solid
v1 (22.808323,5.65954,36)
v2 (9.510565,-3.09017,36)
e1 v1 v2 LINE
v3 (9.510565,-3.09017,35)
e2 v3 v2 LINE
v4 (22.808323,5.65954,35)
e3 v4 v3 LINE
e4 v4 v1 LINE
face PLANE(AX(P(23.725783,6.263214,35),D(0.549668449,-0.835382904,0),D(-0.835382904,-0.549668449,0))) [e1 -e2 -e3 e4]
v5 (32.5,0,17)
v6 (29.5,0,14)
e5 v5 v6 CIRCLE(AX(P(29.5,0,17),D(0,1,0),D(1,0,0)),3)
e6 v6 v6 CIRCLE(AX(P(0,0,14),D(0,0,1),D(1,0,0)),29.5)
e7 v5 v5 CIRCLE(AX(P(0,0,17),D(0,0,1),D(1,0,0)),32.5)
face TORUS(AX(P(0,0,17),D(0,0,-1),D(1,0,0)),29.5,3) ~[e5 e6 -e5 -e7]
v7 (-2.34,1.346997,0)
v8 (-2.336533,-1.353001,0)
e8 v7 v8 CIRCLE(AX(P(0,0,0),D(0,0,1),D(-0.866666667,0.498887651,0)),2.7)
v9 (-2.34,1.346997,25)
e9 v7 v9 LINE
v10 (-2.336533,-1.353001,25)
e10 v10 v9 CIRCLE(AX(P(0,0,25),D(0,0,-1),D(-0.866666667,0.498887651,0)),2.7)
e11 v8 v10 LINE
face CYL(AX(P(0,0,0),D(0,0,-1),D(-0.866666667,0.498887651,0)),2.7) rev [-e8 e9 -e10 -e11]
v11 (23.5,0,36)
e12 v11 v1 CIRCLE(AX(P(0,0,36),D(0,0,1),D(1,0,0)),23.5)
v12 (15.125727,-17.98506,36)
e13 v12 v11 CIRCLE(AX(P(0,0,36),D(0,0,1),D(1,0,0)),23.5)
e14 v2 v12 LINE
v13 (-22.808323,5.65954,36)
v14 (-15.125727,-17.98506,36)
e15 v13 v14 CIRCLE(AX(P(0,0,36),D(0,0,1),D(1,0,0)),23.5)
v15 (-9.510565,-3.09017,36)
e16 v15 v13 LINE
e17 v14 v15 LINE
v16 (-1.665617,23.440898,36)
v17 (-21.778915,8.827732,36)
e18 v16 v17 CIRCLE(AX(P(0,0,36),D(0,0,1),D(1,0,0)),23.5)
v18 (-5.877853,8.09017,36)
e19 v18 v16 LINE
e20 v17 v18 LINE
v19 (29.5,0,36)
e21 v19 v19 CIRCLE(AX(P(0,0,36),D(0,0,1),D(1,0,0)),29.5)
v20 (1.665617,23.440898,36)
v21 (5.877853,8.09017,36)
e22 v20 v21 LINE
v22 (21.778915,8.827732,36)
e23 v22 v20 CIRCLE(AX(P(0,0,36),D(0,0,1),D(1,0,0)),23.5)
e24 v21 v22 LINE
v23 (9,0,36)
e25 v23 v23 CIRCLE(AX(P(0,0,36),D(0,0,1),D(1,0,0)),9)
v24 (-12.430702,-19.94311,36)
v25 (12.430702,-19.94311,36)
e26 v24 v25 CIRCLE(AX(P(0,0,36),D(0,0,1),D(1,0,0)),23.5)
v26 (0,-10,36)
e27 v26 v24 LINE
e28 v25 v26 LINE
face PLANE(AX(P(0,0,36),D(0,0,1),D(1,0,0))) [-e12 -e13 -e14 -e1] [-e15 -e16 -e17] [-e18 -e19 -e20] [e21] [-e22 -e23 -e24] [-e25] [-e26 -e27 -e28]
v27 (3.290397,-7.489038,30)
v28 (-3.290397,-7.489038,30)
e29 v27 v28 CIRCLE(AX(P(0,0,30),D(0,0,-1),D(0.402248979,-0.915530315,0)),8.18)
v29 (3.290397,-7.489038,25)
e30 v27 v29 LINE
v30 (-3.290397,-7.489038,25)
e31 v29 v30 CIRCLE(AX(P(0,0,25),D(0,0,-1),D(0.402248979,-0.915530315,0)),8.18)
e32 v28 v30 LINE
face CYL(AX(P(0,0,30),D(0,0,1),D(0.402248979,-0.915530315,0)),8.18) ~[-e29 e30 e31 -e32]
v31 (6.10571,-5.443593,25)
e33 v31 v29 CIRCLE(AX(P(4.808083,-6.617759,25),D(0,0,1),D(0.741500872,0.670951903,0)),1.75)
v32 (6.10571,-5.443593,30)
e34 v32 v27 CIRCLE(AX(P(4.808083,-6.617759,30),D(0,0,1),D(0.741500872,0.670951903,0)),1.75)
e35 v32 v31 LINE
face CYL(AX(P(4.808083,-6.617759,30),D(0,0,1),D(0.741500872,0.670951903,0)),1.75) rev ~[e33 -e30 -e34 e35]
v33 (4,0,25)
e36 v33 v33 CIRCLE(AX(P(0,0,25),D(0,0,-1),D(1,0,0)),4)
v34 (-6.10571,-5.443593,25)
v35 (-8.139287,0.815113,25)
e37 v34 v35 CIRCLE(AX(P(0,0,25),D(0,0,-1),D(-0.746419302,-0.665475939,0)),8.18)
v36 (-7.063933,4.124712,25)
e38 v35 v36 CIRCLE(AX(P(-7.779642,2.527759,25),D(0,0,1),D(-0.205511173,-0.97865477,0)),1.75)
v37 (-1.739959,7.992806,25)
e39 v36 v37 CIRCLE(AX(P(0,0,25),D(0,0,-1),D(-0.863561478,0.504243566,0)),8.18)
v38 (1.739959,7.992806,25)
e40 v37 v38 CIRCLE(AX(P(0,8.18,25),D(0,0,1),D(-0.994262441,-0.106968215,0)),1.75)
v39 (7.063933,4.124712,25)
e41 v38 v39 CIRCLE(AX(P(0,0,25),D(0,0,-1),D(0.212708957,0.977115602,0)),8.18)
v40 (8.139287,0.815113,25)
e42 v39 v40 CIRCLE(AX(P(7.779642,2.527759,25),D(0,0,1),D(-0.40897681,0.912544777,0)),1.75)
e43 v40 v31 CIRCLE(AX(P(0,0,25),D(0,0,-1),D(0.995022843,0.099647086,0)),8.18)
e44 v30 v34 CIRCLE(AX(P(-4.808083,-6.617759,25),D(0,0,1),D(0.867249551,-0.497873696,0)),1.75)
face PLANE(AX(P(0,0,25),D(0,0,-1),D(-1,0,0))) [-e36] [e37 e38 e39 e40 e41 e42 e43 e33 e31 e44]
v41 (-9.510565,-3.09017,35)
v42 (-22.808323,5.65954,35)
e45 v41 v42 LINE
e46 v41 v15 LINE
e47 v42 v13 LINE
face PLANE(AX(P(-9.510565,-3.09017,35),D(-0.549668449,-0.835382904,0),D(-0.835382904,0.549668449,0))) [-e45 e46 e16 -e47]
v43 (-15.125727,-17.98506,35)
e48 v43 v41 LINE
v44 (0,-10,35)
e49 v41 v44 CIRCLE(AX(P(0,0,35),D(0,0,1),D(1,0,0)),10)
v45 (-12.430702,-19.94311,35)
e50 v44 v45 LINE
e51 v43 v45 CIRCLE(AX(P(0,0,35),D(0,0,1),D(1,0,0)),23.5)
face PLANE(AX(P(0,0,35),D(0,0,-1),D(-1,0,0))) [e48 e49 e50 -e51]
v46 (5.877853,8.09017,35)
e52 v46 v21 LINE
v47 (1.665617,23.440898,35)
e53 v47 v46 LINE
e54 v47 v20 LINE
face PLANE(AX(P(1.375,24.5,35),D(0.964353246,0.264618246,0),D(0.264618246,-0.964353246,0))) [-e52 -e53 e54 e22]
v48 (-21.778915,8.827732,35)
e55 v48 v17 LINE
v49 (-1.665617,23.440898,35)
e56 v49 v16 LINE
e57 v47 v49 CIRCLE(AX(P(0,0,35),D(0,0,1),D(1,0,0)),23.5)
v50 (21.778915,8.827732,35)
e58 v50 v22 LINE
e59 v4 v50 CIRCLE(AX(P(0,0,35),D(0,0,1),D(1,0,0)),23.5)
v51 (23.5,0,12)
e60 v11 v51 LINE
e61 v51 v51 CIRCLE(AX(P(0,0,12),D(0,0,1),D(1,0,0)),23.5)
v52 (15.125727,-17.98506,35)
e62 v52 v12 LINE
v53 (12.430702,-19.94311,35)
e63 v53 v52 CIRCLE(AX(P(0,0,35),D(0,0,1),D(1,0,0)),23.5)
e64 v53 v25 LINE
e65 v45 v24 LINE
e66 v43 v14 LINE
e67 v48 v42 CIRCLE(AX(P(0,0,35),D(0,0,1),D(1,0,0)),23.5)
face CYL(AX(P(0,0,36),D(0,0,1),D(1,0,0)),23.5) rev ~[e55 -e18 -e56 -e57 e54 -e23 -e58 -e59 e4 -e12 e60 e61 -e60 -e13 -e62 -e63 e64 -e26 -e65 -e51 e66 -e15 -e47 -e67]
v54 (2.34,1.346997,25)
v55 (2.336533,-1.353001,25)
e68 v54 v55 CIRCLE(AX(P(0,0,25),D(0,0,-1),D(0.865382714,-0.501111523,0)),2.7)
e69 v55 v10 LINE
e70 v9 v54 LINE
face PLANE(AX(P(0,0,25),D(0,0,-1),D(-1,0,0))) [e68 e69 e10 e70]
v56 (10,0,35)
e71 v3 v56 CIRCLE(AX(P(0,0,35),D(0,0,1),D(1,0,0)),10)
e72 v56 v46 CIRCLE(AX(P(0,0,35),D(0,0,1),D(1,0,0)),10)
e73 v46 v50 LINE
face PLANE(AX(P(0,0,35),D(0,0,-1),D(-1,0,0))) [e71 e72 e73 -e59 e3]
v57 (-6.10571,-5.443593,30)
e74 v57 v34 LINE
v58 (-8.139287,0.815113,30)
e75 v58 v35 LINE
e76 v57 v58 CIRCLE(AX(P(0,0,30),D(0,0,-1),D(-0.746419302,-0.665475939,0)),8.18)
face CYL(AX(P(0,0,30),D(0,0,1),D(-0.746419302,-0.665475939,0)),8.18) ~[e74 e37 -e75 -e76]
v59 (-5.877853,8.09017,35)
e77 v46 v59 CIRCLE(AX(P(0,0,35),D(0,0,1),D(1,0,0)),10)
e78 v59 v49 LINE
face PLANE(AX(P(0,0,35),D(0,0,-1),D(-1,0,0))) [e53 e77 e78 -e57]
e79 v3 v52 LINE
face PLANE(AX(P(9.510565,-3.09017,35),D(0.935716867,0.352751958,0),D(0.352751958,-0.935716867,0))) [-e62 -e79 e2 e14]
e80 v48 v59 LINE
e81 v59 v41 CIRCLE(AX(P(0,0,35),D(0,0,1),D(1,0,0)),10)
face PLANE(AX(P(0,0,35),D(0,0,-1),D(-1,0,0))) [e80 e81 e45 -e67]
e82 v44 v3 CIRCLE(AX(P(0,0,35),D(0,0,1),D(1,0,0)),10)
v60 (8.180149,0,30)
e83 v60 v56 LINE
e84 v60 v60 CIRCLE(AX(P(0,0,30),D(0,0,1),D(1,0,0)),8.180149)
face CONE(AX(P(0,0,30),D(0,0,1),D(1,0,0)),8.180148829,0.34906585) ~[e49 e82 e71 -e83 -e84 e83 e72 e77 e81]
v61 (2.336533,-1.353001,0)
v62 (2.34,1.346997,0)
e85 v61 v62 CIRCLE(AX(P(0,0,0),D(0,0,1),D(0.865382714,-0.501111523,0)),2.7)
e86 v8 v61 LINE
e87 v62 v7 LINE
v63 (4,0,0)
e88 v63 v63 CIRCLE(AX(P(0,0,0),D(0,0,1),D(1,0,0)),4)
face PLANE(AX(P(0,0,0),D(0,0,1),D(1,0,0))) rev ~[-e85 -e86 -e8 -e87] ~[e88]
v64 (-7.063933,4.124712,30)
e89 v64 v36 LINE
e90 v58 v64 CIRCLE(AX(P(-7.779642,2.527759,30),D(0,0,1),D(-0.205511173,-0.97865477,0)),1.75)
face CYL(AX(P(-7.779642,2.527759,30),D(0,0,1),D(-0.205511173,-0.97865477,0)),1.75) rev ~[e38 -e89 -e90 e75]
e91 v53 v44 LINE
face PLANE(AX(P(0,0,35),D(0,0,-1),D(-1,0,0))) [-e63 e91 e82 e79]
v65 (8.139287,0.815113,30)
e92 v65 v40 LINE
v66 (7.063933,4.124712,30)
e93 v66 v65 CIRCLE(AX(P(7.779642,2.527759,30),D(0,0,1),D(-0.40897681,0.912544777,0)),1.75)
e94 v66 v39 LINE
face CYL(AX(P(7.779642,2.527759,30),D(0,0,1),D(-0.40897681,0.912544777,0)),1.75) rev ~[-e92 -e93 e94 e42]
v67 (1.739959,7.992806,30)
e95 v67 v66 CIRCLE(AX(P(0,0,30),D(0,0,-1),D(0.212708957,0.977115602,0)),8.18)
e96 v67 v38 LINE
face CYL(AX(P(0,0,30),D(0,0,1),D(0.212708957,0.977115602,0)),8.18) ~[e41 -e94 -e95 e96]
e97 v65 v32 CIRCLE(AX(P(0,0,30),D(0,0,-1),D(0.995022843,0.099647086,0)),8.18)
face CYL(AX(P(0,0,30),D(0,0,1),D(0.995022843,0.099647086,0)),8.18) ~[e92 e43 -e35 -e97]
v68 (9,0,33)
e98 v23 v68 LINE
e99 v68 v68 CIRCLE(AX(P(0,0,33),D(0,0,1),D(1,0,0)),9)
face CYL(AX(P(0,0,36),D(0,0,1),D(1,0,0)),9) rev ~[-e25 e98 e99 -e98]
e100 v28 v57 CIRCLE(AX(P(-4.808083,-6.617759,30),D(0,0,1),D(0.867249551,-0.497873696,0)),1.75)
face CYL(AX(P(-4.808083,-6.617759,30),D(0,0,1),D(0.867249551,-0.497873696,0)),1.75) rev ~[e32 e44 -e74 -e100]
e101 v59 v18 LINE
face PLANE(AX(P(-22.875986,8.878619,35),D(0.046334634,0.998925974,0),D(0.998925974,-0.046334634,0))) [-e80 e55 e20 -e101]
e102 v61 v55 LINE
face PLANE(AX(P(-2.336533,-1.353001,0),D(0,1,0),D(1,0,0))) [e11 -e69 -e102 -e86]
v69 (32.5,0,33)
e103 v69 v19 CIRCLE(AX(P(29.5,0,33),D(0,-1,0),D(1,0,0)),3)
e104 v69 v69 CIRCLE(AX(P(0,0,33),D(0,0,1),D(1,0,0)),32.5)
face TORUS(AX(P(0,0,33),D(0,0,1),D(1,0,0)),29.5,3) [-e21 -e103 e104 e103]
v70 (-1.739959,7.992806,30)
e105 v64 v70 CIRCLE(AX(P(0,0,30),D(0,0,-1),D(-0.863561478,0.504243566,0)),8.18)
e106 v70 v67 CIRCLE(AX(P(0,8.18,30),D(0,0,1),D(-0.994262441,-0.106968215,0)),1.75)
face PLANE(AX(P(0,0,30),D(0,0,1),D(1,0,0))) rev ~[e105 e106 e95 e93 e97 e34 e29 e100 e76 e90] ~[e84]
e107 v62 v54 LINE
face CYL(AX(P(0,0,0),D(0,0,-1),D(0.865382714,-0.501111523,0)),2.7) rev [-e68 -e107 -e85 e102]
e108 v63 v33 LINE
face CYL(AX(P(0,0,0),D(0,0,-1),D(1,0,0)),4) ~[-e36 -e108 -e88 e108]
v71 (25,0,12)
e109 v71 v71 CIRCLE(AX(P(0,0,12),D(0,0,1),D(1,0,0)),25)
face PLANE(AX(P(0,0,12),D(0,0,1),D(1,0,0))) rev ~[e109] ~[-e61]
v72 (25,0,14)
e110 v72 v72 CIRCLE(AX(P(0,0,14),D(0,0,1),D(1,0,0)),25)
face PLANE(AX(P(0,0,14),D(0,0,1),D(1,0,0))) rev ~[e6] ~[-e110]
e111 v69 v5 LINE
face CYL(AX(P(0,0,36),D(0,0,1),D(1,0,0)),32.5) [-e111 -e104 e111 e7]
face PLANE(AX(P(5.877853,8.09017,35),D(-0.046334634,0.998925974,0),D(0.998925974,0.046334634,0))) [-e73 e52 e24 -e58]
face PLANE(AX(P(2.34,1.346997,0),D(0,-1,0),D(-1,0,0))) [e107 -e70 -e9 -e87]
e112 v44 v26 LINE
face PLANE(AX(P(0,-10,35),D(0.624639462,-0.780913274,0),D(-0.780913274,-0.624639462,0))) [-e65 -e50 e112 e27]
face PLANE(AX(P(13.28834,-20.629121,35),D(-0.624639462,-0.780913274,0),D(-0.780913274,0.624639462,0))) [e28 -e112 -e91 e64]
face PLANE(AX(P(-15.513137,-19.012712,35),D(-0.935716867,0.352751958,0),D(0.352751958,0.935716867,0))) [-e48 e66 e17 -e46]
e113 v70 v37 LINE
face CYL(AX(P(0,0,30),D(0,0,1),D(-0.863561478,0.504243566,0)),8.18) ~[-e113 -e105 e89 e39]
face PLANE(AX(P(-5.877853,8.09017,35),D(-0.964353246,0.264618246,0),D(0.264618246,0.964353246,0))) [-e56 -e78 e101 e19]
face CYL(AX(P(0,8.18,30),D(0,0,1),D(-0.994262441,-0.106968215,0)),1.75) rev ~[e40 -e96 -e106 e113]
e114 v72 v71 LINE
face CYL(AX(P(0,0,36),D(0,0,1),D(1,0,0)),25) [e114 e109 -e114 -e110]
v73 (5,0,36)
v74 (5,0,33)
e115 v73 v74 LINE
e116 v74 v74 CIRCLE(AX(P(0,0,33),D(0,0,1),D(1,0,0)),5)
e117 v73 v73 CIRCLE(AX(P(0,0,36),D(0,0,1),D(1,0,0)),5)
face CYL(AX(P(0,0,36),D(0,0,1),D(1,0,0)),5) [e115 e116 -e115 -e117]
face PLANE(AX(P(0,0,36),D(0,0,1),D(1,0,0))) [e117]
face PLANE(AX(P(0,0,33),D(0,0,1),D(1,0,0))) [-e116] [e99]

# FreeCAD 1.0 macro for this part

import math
import FreeCAD as App
import Part
import Sketcher
from FreeCAD import Vector
Q = App.Units.Quantity


def edges_at(feature, points):
    """Names of the edges that pass closest to the given points."""
    edges = feature.Shape.Edges
    near = lambda p: min(range(len(edges)), key=lambda i: edges[i].distToShape(Part.Vertex(*p))[0])
    return sorted({f"Edge{near(p) + 1}" for p in points})


def faces_at(feature, points):
    """Names of the faces that lie closest to the given points."""
    faces = feature.Shape.Faces
    near = lambda p: min(range(len(faces)), key=lambda i: faces[i].distToShape(Part.Vertex(*p))[0])
    return sorted({f"Face{near(p) + 1}" for p in points})


def add_polygon(sketch, points):
    """Adds a closed chain of lines whose ends are joined by coincident constraints."""
    first, n = sketch.GeometryCount, len(points)
    for a, b in zip(points, points[1:] + points[:1]):
        sketch.addGeometry(Part.LineSegment(App.Vector(*a, 0), App.Vector(*b, 0)), False)
    for i in range(n):
        sketch.addConstraint(Sketcher.Constraint("Coincident", first + i, 2, first + (i + 1) % n, 1))

doc = App.newDocument("Part")
body = doc.addObject("PartDesign::Body", "Body")

# Sketch on XY plane
sketch1 = body.newObject("Sketcher::SketchObject", "Sketch")
sketch1.AttachmentSupport = (doc.getObject("XY_Plane"), [""])
sketch1.MapMode = "FlatFace"
sketch1.addGeometry([
    Part.Circle(Vector(0, 0, 0), Vector(0, 0, 1), 4),  # 0
    Part.LineSegment(Vector(2.3, -1.4, 0), Vector(-2.3, -1.4, 0)),  # 1
    Part.ArcOfCircle(Part.Circle(Vector(0, 0, 0), Vector(0, 0, 1), 2.7), math.radians(150), math.radians(210)),  # 2
    Part.LineSegment(Vector(-2.3, 1.3, 0), Vector(2.3, 1.3, 0)),  # 3
    Part.ArcOfCircle(Part.Circle(Vector(0, 0, 0), Vector(0, 0, 1), 2.7), math.radians(-30), math.radians(30)),  # 4
], False)
sketch1.addConstraint([
    Sketcher.Constraint("Coincident", 1, 2, 2, 2),
    Sketcher.Constraint("Coincident", 2, 1, 3, 1),
    Sketcher.Constraint("Coincident", 3, 2, 4, 2),
    Sketcher.Constraint("Coincident", 4, 1, 1, 1),
    Sketcher.Constraint("Horizontal", 1),
    Sketcher.Constraint("Horizontal", 3),
    Sketcher.Constraint("Coincident", 0, 3, -1, 1),
    Sketcher.Constraint("Coincident", 2, 3, -1, 1),
    Sketcher.Constraint("Coincident", 4, 3, -1, 1),
    Sketcher.Constraint("Equal", 2, 4),
    Sketcher.Constraint("Diameter", 0, 8.0),
    Sketcher.Constraint("Radius", 2, 2.7),
    Sketcher.Constraint("DistanceX", 3, 1, 3, 2, 4.68),
    Sketcher.Constraint("DistanceY", 1, 2, -1, 1, 1.353001),
])
pad1 = body.newObject("PartDesign::Pad", "Pad")
pad1.Profile = sketch1
pad1.Length = 30

# Sketch on XY plane
sketch2 = body.newObject("Sketcher::SketchObject", "Sketch001")
sketch2.AttachmentSupport = (doc.getObject("XY_Plane"), [""])
sketch2.MapMode = "FlatFace"
sketch2.AttachmentOffset = App.Placement(Vector(0, 0, 30), App.Rotation())
sketch2.addGeometry(Part.Circle(Vector(0, 0, 0), Vector(0, 0, 1), 10), False)
sketch2.addConstraint([
    Sketcher.Constraint("Coincident", 0, 3, -1, 1),
    Sketcher.Constraint("Diameter", 0, 20.0),
])
pad2 = body.newObject("PartDesign::Pad", "Pad001")
pad2.Profile = sketch2
pad2.Length = 5
doc.recompute()

datumplane = body.newObject("PartDesign::Plane", "DatumPlane")
datumplane.AttachmentSupport = (doc.getObject("XY_Plane"), [""])
datumplane.MapMode = "FlatFace"
datumplane.AttachmentOffset = App.Placement(Vector(0, 0, 35), App.Rotation())
draft = body.newObject("PartDesign::Draft", "Draft")
draft.Base = (pad2, faces_at(pad2, [(-10, 0, 32.5)]))
draft.NeutralPlane = (datumplane, [""])
draft.Angle = 20
draft.Reversed = True

# Sketch on XY plane
sketch3 = body.newObject("Sketcher::SketchObject", "Sketch002")
sketch3.AttachmentSupport = (doc.getObject("XY_Plane"), [""])
sketch3.MapMode = "FlatFace"
sketch3.AttachmentOffset = App.Placement(Vector(0, 0, 30), App.Rotation())
sketch3.addGeometry([
    Part.ArcOfCircle(Part.Circle(Vector(0, 0, 0), Vector(0, 0, 1), 8.2), math.radians(-42), math.radians(6)),  # 0
    Part.ArcOfCircle(Part.Circle(Vector(4.8, -6.6, 0), Vector(0, 0, 1), 1.8), math.radians(42), math.radians(210)),  # 1
    Part.ArcOfCircle(Part.Circle(Vector(0, 0, 0), Vector(0, 0, 1), 8.2), math.radians(-114), math.radians(-66)),  # 2
    Part.ArcOfCircle(Part.Circle(Vector(-4.8, -6.6, 0), Vector(0, 0, 1), 1.8), math.radians(-30), math.radians(138)),  # 3
    Part.ArcOfCircle(Part.Circle(Vector(0, 0, 0), Vector(0, 0, 1), 8.2), math.radians(174), math.radians(222)),  # 4
    Part.ArcOfCircle(Part.Circle(Vector(-7.8, 2.5, 0), Vector(0, 0, 1), 1.8), math.radians(-102), math.radians(66)),  # 5
    Part.ArcOfCircle(Part.Circle(Vector(0, 0, 0), Vector(0, 0, 1), 8.2), math.radians(102), math.radians(150)),  # 6
    Part.ArcOfCircle(Part.Circle(Vector(0, 8.2, 0), Vector(0, 0, 1), 1.8), math.radians(-174), math.radians(-6)),  # 7
    Part.ArcOfCircle(Part.Circle(Vector(0, 0, 0), Vector(0, 0, 1), 8.2), math.radians(30), math.radians(78)),  # 8
    Part.ArcOfCircle(Part.Circle(Vector(7.8, 2.5, 0), Vector(0, 0, 1), 1.8), math.radians(114), math.radians(282)),  # 9
], False)
sketch3.addConstraint([
    Sketcher.Constraint("Coincident", 0, 1, 1, 1),
    Sketcher.Constraint("Coincident", 1, 2, 2, 2),
    Sketcher.Constraint("Coincident", 2, 1, 3, 1),
    Sketcher.Constraint("Coincident", 3, 2, 4, 2),
    Sketcher.Constraint("Coincident", 4, 1, 5, 1),
    Sketcher.Constraint("Coincident", 5, 2, 6, 2),
    Sketcher.Constraint("Coincident", 6, 1, 7, 1),
    Sketcher.Constraint("Coincident", 7, 2, 8, 2),
    Sketcher.Constraint("Coincident", 8, 1, 9, 1),
    Sketcher.Constraint("Coincident", 9, 2, 0, 2),
    Sketcher.Constraint("Coincident", 0, 3, -1, 1),
    Sketcher.Constraint("Coincident", 2, 3, -1, 1),
    Sketcher.Constraint("Coincident", 4, 3, -1, 1),
    Sketcher.Constraint("Coincident", 6, 3, -1, 1),
    Sketcher.Constraint("Coincident", 8, 3, -1, 1),
    Sketcher.Constraint("Equal", 0, 2),
    Sketcher.Constraint("Equal", 1, 3),
    Sketcher.Constraint("Equal", 2, 4),
    Sketcher.Constraint("Equal", 3, 5),
    Sketcher.Constraint("Equal", 4, 6),
    Sketcher.Constraint("Equal", 5, 7),
    Sketcher.Constraint("Equal", 6, 8),
    Sketcher.Constraint("Equal", 7, 9),
    Sketcher.Constraint("Symmetric", 1, 3, 3, 3, -2),
    Sketcher.Constraint("Symmetric", 5, 3, 9, 3, -2),
    Sketcher.Constraint("PointOnObject", 7, 3, -2),
    Sketcher.Constraint("Radius", 0, 8.18),
    Sketcher.Constraint("Radius", 1, 1.75),
    Sketcher.Constraint("DistanceY", -1, 1, 7, 3, 8.18),
    Sketcher.Constraint("DistanceY", 4, 1, 5, 2, 3.309599),
    Sketcher.Constraint("DistanceY", 1, 3, -1, 1, 6.617759),
    Sketcher.Constraint("DistanceY", -1, 1, 5, 3, 2.527759),
    Sketcher.Constraint("DistanceX", -1, 1, 0, 1, 6.10571),
])
pad3 = body.newObject("PartDesign::Pad", "Pad002")
pad3.Profile = sketch3
pad3.Length = 5
pad3.Reversed = True

# Sketch on XY plane
sketch4 = body.newObject("Sketcher::SketchObject", "Sketch003")
sketch4.AttachmentSupport = (doc.getObject("XY_Plane"), [""])
sketch4.MapMode = "FlatFace"
sketch4.AttachmentOffset = App.Placement(Vector(0, 0, 35), App.Rotation())
add_polygon(sketch4, [(1.4, 24.5), (-1.4, 24.5), (-5.9, 8.1), (-22.9, 8.9), (-23.7, 6.3), (-9.5, -3.1), (-15.5, -19), (-13.3, -20.6), (0, -10), (13.3, -20.6), (15.5, -19), (9.5, -3.1), (23.7, 6.3), (22.9, 8.9), (5.9, 8.1)])  # lines 0-14
sketch4.addConstraint([
    Sketcher.Constraint("Horizontal", 0),
    Sketcher.Constraint("Symmetric", 6, 2, 8, 2, -2),
    Sketcher.Constraint("Symmetric", 5, 2, 9, 2, -2),
    Sketcher.Constraint("Symmetric", 4, 2, 10, 2, -2),
    Sketcher.Constraint("Symmetric", 3, 2, 11, 2, -2),
    Sketcher.Constraint("Symmetric", 2, 2, 12, 2, -2),
    Sketcher.Constraint("Symmetric", 1, 2, 13, 2, -2),
    Sketcher.Constraint("PointOnObject", 7, 2, -2),
    Sketcher.Constraint("Equal", 1, 2),
    Sketcher.Constraint("Equal", 2, 4),
    Sketcher.Constraint("Equal", 4, 5),
    Sketcher.Constraint("Equal", 3, 6),
    Sketcher.Constraint("Equal", 5, 7),
    Sketcher.Constraint("Equal", 13, 14),
    Sketcher.Constraint("Angle", 3, Q("-108 deg")),
    Sketcher.Constraint("Angle", 6, Q("-36 deg")),
    Sketcher.Constraint("DistanceY", 7, 2, -1, 1, 10.0),
    Sketcher.Constraint("DistanceX", 0, 2, 0, 1, 2.75),
    Sketcher.Constraint("DistanceY", -1, 1, 0, 2, 24.5),
    Sketcher.Constraint("Distance", 3, 2.75),
    Sketcher.Constraint("Distance", 1, 17.01641),
    Sketcher.Constraint("DistanceY", -1, 1, 1, 2, 8.09017),
    Sketcher.Constraint("DistanceY", -1, 1, 2, 2, 8.878619),
    Sketcher.Constraint("DistanceY", 4, 2, -1, 1, 3.09017),
])
pad4 = body.newObject("PartDesign::Pad", "Pad003")
pad4.Profile = sketch4
pad4.Length = 1

# Sketch on XY plane
sketch5 = body.newObject("Sketcher::SketchObject", "Sketch004")
sketch5.AttachmentSupport = (doc.getObject("XY_Plane"), [""])
sketch5.MapMode = "FlatFace"
sketch5.AttachmentOffset = App.Placement(Vector(0, 0, 36), App.Rotation())
sketch5.addGeometry([
    Part.Circle(Vector(0, 0, 0), Vector(0, 0, 1), 25),
    Part.Circle(Vector(0, 0, 0), Vector(0, 0, 1), 24),
], False)
sketch5.addConstraint([
    Sketcher.Constraint("Coincident", 0, 3, -1, 1),
    Sketcher.Constraint("Coincident", 1, 3, -1, 1),
    Sketcher.Constraint("Diameter", 0, 50.0),
    Sketcher.Constraint("Diameter", 1, 47.0),
])
pad5 = body.newObject("PartDesign::Pad", "Pad004")
pad5.Profile = sketch5
pad5.Length = 24
pad5.Reversed = True

# Sketch on XY plane
sketch6 = body.newObject("Sketcher::SketchObject", "Sketch005")
sketch6.AttachmentSupport = (doc.getObject("XY_Plane"), [""])
sketch6.MapMode = "FlatFace"
sketch6.AttachmentOffset = App.Placement(Vector(0, 0, 36), App.Rotation())
sketch6.addGeometry([
    Part.Circle(Vector(0, 0, 0), Vector(0, 0, 1), 9),
    Part.Circle(Vector(0, 0, 0), Vector(0, 0, 1), 5),
], False)
sketch6.addConstraint([
    Sketcher.Constraint("Coincident", 0, 3, -1, 1),
    Sketcher.Constraint("Coincident", 1, 3, -1, 1),
    Sketcher.Constraint("Diameter", 0, 18.0),
    Sketcher.Constraint("Diameter", 1, 10.0),
])
pocket1 = body.newObject("PartDesign::Pocket", "Pocket")
pocket1.Profile = sketch6
pocket1.Length = 3

# Sketch on XY plane
sketch7 = body.newObject("Sketcher::SketchObject", "Sketch006")
sketch7.AttachmentSupport = (doc.getObject("XY_Plane"), [""])
sketch7.MapMode = "FlatFace"
sketch7.AttachmentOffset = App.Placement(Vector(0, 0, 36), App.Rotation())
sketch7.addGeometry([
    Part.Circle(Vector(0, 0, 0), Vector(0, 0, 1), 32),
    Part.Circle(Vector(0, 0, 0), Vector(0, 0, 1), 25),
], False)
sketch7.addConstraint([
    Sketcher.Constraint("Coincident", 0, 3, -1, 1),
    Sketcher.Constraint("Coincident", 1, 3, -1, 1),
    Sketcher.Constraint("Diameter", 0, 65.0),
    Sketcher.Constraint("Diameter", 1, 50.0),
])
pad6 = body.newObject("PartDesign::Pad", "Pad005")
pad6.Profile = sketch7
pad6.Length = 22
pad6.Reversed = True
doc.recompute()

fillet = body.newObject("PartDesign::Fillet", "Fillet")
fillet.Base = (pad6, edges_at(pad6, [(-32.5, 0, 14), (-32.5, 0, 36)]))
fillet.Radius = 3

doc.recompute()
